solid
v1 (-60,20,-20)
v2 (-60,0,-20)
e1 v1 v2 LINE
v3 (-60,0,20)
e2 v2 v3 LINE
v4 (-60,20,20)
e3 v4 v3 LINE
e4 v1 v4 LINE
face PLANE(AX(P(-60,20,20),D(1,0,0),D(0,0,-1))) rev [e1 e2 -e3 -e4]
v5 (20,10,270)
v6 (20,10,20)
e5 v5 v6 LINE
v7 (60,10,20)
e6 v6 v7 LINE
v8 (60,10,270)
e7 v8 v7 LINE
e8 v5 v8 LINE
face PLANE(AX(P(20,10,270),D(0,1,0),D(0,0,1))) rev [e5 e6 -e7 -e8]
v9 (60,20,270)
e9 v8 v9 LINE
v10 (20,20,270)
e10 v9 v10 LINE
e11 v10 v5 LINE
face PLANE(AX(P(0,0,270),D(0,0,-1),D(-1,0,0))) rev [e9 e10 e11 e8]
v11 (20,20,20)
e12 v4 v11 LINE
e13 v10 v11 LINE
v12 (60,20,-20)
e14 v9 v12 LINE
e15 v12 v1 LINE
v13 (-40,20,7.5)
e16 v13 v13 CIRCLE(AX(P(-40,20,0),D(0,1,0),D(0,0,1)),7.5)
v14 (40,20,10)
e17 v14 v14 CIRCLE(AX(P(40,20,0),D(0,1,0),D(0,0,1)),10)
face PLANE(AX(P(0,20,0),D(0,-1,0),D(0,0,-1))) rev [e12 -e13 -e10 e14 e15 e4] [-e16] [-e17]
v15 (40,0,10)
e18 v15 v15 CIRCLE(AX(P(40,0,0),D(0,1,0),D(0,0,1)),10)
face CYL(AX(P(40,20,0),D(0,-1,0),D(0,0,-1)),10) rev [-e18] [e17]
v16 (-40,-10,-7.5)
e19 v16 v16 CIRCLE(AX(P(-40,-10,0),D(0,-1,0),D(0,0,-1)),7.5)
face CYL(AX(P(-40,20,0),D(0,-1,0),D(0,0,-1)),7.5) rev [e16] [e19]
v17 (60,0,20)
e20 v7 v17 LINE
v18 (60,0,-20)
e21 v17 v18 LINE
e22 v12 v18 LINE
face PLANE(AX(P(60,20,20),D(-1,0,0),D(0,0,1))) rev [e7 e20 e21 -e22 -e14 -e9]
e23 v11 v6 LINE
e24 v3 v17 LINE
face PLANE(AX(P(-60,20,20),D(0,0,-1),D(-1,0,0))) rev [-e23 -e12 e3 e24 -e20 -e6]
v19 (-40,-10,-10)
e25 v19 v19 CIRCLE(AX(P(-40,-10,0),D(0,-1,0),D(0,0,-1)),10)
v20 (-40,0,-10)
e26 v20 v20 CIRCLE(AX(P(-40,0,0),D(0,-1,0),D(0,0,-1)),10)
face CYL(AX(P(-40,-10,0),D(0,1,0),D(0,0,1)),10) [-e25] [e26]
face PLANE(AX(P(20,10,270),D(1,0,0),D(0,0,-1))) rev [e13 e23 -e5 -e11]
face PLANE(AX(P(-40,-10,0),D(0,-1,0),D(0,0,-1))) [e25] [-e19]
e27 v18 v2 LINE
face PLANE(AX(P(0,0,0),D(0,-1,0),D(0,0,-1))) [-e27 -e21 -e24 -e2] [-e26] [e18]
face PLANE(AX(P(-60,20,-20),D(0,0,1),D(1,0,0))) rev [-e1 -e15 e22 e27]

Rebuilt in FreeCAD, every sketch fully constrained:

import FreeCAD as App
import Part
import Sketcher

V = App.Vector

doc = App.newDocument("Part")
params = doc.addObject("Spreadsheet::Sheet", "Params")
for row, (alias, value) in enumerate([
    ("sketch1_diameter", "15 mm"),
    ("sketch1_diameter2", "20 mm"),
    ("sketch1_width", "120 mm"),
    ("sketch1_height", "40 mm"),
    ("pad1_length", "20 mm"),
    ("sketch2_diameter", "20 mm"),
    ("sketch2_diameter2", "15 mm"),
    ("pad2_length", "10 mm"),
    ("sketch3_width", "40 mm"),
    ("sketch3_height", "10 mm"),
    ("pad3_length", "250 mm"),
], start=1):
    params.set(f"A{row}", alias)
    params.set(f"B{row}", "=" + value)
    params.setAlias(f"B{row}", alias)

body = doc.addObject("PartDesign::Body", "Body")

# Sketch on XZ plane
sketch1 = body.newObject("Sketcher::SketchObject", "Sketch")
sketch1.AttachmentSupport = (doc.getObject("XZ_Plane"), [""])
sketch1.MapMode = "FlatFace"
sketch1.addGeometry([
    Part.LineSegment(V(-60, -20, 0), V(-60, 20, 0)),  # 0
    Part.LineSegment(V(-60, 20, 0), V(60, 20, 0)),  # 1
    Part.LineSegment(V(60, 20, 0), V(60, -20, 0)),  # 2
    Part.LineSegment(V(60, -20, 0), V(-60, -20, 0)),  # 3
    Part.Circle(V(-40, 0, 0), V(0, 0, 1), 8),  # 4
    Part.Circle(V(40, 0, 0), V(0, 0, 1), 10),  # 5
], False)
sketch1.addConstraint([
    Sketcher.Constraint("Coincident", 0, 2, 1, 1),
    Sketcher.Constraint("Coincident", 1, 2, 2, 1),
    Sketcher.Constraint("Coincident", 2, 2, 3, 1),
    Sketcher.Constraint("Coincident", 3, 2, 0, 1),
    Sketcher.Constraint("Vertical", 0),
    Sketcher.Constraint("Horizontal", 1),
    Sketcher.Constraint("Vertical", 2),
    Sketcher.Constraint("Horizontal", 3),
    Sketcher.Constraint("Symmetric", 4, 3, 5, 3, -1, 1),
    Sketcher.Constraint("Symmetric", 0, 2, 2, 2, -1, 1),
    Sketcher.Constraint("PointOnObject", 4, 3, -1),
    Sketcher.Constraint("Diameter", 4, 15.0),
    Sketcher.Constraint("Diameter", 5, 20.0),
    Sketcher.Constraint("DistanceX", 1, 1, 1, 2, 120.0),
    Sketcher.Constraint("DistanceY", 0, 1, 0, 2, 40.0),
    Sketcher.Constraint("DistanceX", 4, 3, -1, 1, 40.0),
])
sketch1.setExpression("Constraints[11]", "Params.sketch1_diameter")
sketch1.setExpression("Constraints[12]", "Params.sketch1_diameter2")
sketch1.setExpression("Constraints[13]", "Params.sketch1_width")
sketch1.setExpression("Constraints[14]", "Params.sketch1_height")
pad1 = body.newObject("PartDesign::Pad", "Pad")
pad1.Profile = sketch1
pad1.setExpression("Length", "Params.pad1_length")
pad1.Reversed = True

# Sketch on XZ plane
sketch2 = body.newObject("Sketcher::SketchObject", "Sketch001")
sketch2.AttachmentSupport = (doc.getObject("XZ_Plane"), [""])
sketch2.MapMode = "FlatFace"
sketch2.AttachmentOffset = App.Placement(V(0, 0, 10), App.Rotation())
sketch2.addGeometry([
    Part.Circle(V(-40, 0, 0), V(0, 0, 1), 10),
    Part.Circle(V(-40, 0, 0), V(0, 0, 1), 8),
], False)
sketch2.addConstraint([
    Sketcher.Constraint("Coincident", 1, 3, 0, 3),
    Sketcher.Constraint("PointOnObject", 0, 3, -1),
    Sketcher.Constraint("Diameter", 0, 20.0),
    Sketcher.Constraint("Diameter", 1, 15.0),
    Sketcher.Constraint("DistanceX", 0, 3, -1, 1, 40.0),
])
sketch2.setExpression("Constraints[2]", "Params.sketch2_diameter")
sketch2.setExpression("Constraints[3]", "Params.sketch2_diameter2")
pad2 = body.newObject("PartDesign::Pad", "Pad001")
pad2.Profile = sketch2
pad2.setExpression("Length", "Params.pad2_length")
pad2.Reversed = True

# Sketch on XY plane
sketch3 = body.newObject("Sketcher::SketchObject", "Sketch002")
sketch3.AttachmentSupport = (doc.getObject("XY_Plane"), [""])
sketch3.MapMode = "FlatFace"
sketch3.AttachmentOffset = App.Placement(V(0, 0, 20), App.Rotation())
sketch3.addGeometry([
    Part.LineSegment(V(20, 20, 0), V(20, 10, 0)),
    Part.LineSegment(V(20, 10, 0), V(60, 10, 0)),
    Part.LineSegment(V(60, 10, 0), V(60, 20, 0)),
    Part.LineSegment(V(60, 20, 0), V(20, 20, 0)),
], False)
sketch3.addConstraint([
    Sketcher.Constraint("Coincident", 0, 2, 1, 1),
    Sketcher.Constraint("Coincident", 1, 2, 2, 1),
    Sketcher.Constraint("Coincident", 2, 2, 3, 1),
    Sketcher.Constraint("Coincident", 3, 2, 0, 1),
    Sketcher.Constraint("Vertical", 0),
    Sketcher.Constraint("Horizontal", 1),
    Sketcher.Constraint("Vertical", 2),
    Sketcher.Constraint("Horizontal", 3),
    Sketcher.Constraint("DistanceX", 1, 1, 1, 2, 40.0),
    Sketcher.Constraint("DistanceY", 0, 2, 0, 1, 10.0),
    Sketcher.Constraint("DistanceX", -1, 1, 0, 2, 20.0),
    Sketcher.Constraint("DistanceY", -1, 1, 0, 2, 10.0),
])
sketch3.setExpression("Constraints[8]", "Params.sketch3_width")
sketch3.setExpression("Constraints[9]", "Params.sketch3_height")
pad3 = body.newObject("PartDesign::Pad", "Pad002")
pad3.Profile = sketch3
pad3.setExpression("Length", "Params.pad3_length")

doc.recompute()
